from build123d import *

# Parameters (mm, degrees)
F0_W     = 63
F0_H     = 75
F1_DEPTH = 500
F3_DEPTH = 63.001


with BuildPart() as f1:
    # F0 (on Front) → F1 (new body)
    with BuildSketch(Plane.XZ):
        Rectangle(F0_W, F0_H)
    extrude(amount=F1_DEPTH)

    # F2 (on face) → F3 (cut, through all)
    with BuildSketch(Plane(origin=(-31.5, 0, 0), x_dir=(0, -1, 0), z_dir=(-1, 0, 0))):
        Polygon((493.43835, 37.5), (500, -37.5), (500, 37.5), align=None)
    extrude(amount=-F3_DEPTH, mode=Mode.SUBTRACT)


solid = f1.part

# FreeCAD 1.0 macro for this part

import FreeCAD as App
import Part
import Sketcher
Q = App.Units.Quantity

doc = App.newDocument("Part")
body = doc.addObject("PartDesign::Body", "Body")

# Sketch on XZ plane
sketch1 = body.newObject("Sketcher::SketchObject", "Sketch")
sketch1.AttachmentSupport = (doc.getObject("XZ_Plane"), [""])
sketch1.MapMode = "FlatFace"
sketch1.addGeometry([
    Part.LineSegment(App.Vector(-31.5, 37.5, 0), App.Vector(-31.5, -37.5, 0)),
    Part.LineSegment(App.Vector(-31.5, -37.5, 0), App.Vector(31.5, -37.5, 0)),
    Part.LineSegment(App.Vector(31.5, -37.5, 0), App.Vector(31.5, 37.5, 0)),
    Part.LineSegment(App.Vector(31.5, 37.5, 0), App.Vector(-31.5, 37.5, 0)),
], False)
sketch1.addConstraint([
    Sketcher.Constraint("Coincident", 0, 2, 1, 1),
    Sketcher.Constraint("Coincident", 1, 2, 2, 1),
    Sketcher.Constraint("Coincident", 2, 2, 3, 1),
    Sketcher.Constraint("Coincident", 3, 2, 0, 1),
    Sketcher.Constraint("Vertical", 0),
    Sketcher.Constraint("Horizontal", 1),
    Sketcher.Constraint("Vertical", 2),
    Sketcher.Constraint("Horizontal", 3),
    Sketcher.Constraint("Symmetric", 0, 2, 2, 2, -1, 1),
    Sketcher.Constraint("DistanceX", 1, 1, 1, 2, Q("63 mm")),
    Sketcher.Constraint("DistanceY", 0, 2, 0, 1, Q("75 mm")),
])
pad1 = body.newObject("PartDesign::Pad", "Pad")
pad1.Profile = sketch1
pad1.Length = 500

# Sketch on YZ plane
sketch2 = body.newObject("Sketcher::SketchObject", "Sketch001")
sketch2.AttachmentSupport = (doc.getObject("YZ_Plane"), [""])
sketch2.MapMode = "FlatFace"
sketch2.AttachmentOffset = App.Placement(App.Vector(0, 0, -31.5), App.Rotation())
sketch2.addGeometry([
    Part.LineSegment(App.Vector(-493.43835, 37.5, 0), App.Vector(-500, -37.5, 0)),
    Part.LineSegment(App.Vector(-500, -37.5, 0), App.Vector(-500, 37.5, 0)),
    Part.LineSegment(App.Vector(-500, 37.5, 0), App.Vector(-493.43835, 37.5, 0)),
], False)
sketch2.addConstraint([
    Sketcher.Constraint("Coincident", 0, 2, 1, 1),
    Sketcher.Constraint("Coincident", 1, 2, 2, 1),
    Sketcher.Constraint("Coincident", 2, 2, 0, 1),
    Sketcher.Constraint("Vertical", 1),
    Sketcher.Constraint("Horizontal", 2),
    Sketcher.Constraint("DistanceY", 1, 1, 1, 2, Q("75 mm")),
    Sketcher.Constraint("Angle", 0, Q("-95 deg")),
    Sketcher.Constraint("DistanceX", 0, 2, -1, 1, Q("500 mm")),
    Sketcher.Constraint("DistanceY", 0, 2, -1, 1, Q("37.5 mm")),
])
pocket1 = body.newObject("PartDesign::Pocket", "Pocket")
pocket1.Profile = sketch2
pocket1.Type = "ThroughAll"
pocket1.Reversed = True

doc.recompute()
